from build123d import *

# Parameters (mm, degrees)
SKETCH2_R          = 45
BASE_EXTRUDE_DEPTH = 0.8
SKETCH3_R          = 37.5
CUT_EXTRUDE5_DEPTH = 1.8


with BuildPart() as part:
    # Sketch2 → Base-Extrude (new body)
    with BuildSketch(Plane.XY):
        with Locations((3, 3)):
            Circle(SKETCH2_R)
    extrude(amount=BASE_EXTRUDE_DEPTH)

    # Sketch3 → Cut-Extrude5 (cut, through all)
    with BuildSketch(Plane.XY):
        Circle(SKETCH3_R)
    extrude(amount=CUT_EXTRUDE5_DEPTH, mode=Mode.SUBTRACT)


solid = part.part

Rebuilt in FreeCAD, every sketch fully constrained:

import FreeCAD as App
import Part
import Sketcher

doc = App.newDocument("Part")
body = doc.addObject("PartDesign::Body", "Body")

sketch1 = doc.addObject("Sketcher::SketchObject", "Sketch")
body.addObject(sketch1)
sketch1.AttachmentSupport = (doc.XY_Plane, [""])
sketch1.MapMode = "FlatFace"
sketch1.addGeometry(Part.Circle(App.Vector(3, 3, 0), App.Vector(0, 0, 1), 45), False)
sketch1.addConstraint(Sketcher.Constraint("Diameter", 0, 90.0))
sketch1.addConstraint(Sketcher.Constraint("DistanceX", -1, 1, 0, 3, 3.0))
sketch1.addConstraint(Sketcher.Constraint("DistanceY", -1, 1, 0, 3, 3.0))
pad1 = doc.addObject("PartDesign::Pad", "Pad")
body.addObject(pad1)
pad1.Profile = sketch1
pad1.Length = 0.8

sketch2 = doc.addObject("Sketcher::SketchObject", "Sketch001")
body.addObject(sketch2)
sketch2.AttachmentSupport = (doc.XY_Plane, [""])
sketch2.MapMode = "FlatFace"
sketch2.addGeometry(Part.Circle(App.Vector(0, 0, 0), App.Vector(0, 0, 1), 38), False)
sketch2.addConstraint(Sketcher.Constraint("Coincident", 0, 3, -1, 1))
sketch2.addConstraint(Sketcher.Constraint("Diameter", 0, 75.0))
pocket1 = doc.addObject("PartDesign::Pocket", "Pocket")
body.addObject(pocket1)
pocket1.Profile = sketch2
pocket1.Type = "ThroughAll"
pocket1.Reversed = True

doc.recompute()
